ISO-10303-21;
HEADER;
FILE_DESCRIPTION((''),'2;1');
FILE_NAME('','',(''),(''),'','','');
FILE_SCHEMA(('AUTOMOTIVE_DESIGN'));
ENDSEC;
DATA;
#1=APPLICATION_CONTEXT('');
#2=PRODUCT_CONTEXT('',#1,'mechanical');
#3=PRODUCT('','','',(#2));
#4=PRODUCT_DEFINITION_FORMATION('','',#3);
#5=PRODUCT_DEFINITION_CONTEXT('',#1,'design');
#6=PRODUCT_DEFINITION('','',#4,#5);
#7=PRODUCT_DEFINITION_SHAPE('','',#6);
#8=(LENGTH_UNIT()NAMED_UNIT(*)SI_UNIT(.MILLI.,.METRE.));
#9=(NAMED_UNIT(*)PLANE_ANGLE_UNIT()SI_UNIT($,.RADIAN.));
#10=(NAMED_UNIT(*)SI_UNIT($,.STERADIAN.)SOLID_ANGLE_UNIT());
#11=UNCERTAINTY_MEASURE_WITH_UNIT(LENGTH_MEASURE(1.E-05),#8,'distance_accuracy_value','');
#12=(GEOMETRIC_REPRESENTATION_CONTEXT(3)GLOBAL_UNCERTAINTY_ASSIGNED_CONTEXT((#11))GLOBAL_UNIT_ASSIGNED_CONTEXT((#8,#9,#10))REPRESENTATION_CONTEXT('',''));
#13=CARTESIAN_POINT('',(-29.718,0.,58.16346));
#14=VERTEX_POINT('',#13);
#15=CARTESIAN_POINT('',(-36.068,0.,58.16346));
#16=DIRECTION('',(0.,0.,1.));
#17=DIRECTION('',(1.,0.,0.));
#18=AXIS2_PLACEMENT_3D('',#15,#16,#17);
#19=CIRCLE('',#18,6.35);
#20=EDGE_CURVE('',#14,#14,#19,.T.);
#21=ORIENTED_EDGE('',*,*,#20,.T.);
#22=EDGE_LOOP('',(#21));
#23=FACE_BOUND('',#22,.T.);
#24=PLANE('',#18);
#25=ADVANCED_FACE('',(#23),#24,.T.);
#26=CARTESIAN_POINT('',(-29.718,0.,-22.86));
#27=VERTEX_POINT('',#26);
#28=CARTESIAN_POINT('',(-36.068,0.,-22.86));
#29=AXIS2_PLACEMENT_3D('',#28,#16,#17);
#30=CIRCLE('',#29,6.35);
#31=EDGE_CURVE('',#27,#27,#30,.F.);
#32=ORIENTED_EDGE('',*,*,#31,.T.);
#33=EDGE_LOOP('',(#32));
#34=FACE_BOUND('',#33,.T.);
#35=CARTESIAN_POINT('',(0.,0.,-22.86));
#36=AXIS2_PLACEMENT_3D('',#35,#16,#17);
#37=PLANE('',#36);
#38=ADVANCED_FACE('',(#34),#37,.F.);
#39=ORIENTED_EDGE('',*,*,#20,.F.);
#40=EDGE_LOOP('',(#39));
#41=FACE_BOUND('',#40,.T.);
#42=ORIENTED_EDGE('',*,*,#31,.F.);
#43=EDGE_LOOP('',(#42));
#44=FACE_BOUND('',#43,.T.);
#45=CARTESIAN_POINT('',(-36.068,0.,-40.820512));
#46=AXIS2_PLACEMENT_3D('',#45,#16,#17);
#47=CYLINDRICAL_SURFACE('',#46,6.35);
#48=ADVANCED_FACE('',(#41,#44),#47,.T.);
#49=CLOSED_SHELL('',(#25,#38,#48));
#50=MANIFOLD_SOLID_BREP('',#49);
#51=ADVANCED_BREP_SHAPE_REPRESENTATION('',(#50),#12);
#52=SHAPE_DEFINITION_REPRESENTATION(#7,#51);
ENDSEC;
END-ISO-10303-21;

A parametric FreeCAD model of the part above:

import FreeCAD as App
import Part
import Sketcher
from FreeCAD import Vector
Q = App.Units.Quantity

doc = App.newDocument("Part")
params = doc.addObject("Spreadsheet::Sheet", "Params")
for row, (alias, value) in enumerate([
    ("sketch1_diameter", "0.5 in"),
    ("pad1_length", "3.1899 in"),
], start=1):
    params.set(f"A{row}", alias)
    params.set(f"B{row}", "=" + value)
    params.setAlias(f"B{row}", alias)

body = doc.addObject("PartDesign::Body", "Body")

# Sketch on XY plane
sketch1 = body.newObject("Sketcher::SketchObject", "Sketch")
sketch1.AttachmentSupport = (doc.getObject("XY_Plane"), [""])
sketch1.MapMode = "FlatFace"
sketch1.AttachmentOffset = App.Placement(Vector(0, 0, 2.2899 * 25.4), App.Rotation())
sketch1.addGeometry(Part.Circle(Vector(-36, 0, 0), Vector(0, 0, 1), 6), False)
sketch1.addConstraint(Sketcher.Constraint("PointOnObject", 0, 3, -1))
sketch1.addConstraint(Sketcher.Constraint("Diameter", 0, Q("0.5 in")))
sketch1.addConstraint(Sketcher.Constraint("DistanceX", 0, 3, -1, 1, Q("1.42 in")))
sketch1.setExpression("Constraints[1]", "Params.sketch1_diameter")
pad1 = body.newObject("PartDesign::Pad", "Pad")
pad1.Profile = sketch1
pad1.setExpression("Length", "Params.pad1_length")
pad1.Reversed = True

doc.recompute()
